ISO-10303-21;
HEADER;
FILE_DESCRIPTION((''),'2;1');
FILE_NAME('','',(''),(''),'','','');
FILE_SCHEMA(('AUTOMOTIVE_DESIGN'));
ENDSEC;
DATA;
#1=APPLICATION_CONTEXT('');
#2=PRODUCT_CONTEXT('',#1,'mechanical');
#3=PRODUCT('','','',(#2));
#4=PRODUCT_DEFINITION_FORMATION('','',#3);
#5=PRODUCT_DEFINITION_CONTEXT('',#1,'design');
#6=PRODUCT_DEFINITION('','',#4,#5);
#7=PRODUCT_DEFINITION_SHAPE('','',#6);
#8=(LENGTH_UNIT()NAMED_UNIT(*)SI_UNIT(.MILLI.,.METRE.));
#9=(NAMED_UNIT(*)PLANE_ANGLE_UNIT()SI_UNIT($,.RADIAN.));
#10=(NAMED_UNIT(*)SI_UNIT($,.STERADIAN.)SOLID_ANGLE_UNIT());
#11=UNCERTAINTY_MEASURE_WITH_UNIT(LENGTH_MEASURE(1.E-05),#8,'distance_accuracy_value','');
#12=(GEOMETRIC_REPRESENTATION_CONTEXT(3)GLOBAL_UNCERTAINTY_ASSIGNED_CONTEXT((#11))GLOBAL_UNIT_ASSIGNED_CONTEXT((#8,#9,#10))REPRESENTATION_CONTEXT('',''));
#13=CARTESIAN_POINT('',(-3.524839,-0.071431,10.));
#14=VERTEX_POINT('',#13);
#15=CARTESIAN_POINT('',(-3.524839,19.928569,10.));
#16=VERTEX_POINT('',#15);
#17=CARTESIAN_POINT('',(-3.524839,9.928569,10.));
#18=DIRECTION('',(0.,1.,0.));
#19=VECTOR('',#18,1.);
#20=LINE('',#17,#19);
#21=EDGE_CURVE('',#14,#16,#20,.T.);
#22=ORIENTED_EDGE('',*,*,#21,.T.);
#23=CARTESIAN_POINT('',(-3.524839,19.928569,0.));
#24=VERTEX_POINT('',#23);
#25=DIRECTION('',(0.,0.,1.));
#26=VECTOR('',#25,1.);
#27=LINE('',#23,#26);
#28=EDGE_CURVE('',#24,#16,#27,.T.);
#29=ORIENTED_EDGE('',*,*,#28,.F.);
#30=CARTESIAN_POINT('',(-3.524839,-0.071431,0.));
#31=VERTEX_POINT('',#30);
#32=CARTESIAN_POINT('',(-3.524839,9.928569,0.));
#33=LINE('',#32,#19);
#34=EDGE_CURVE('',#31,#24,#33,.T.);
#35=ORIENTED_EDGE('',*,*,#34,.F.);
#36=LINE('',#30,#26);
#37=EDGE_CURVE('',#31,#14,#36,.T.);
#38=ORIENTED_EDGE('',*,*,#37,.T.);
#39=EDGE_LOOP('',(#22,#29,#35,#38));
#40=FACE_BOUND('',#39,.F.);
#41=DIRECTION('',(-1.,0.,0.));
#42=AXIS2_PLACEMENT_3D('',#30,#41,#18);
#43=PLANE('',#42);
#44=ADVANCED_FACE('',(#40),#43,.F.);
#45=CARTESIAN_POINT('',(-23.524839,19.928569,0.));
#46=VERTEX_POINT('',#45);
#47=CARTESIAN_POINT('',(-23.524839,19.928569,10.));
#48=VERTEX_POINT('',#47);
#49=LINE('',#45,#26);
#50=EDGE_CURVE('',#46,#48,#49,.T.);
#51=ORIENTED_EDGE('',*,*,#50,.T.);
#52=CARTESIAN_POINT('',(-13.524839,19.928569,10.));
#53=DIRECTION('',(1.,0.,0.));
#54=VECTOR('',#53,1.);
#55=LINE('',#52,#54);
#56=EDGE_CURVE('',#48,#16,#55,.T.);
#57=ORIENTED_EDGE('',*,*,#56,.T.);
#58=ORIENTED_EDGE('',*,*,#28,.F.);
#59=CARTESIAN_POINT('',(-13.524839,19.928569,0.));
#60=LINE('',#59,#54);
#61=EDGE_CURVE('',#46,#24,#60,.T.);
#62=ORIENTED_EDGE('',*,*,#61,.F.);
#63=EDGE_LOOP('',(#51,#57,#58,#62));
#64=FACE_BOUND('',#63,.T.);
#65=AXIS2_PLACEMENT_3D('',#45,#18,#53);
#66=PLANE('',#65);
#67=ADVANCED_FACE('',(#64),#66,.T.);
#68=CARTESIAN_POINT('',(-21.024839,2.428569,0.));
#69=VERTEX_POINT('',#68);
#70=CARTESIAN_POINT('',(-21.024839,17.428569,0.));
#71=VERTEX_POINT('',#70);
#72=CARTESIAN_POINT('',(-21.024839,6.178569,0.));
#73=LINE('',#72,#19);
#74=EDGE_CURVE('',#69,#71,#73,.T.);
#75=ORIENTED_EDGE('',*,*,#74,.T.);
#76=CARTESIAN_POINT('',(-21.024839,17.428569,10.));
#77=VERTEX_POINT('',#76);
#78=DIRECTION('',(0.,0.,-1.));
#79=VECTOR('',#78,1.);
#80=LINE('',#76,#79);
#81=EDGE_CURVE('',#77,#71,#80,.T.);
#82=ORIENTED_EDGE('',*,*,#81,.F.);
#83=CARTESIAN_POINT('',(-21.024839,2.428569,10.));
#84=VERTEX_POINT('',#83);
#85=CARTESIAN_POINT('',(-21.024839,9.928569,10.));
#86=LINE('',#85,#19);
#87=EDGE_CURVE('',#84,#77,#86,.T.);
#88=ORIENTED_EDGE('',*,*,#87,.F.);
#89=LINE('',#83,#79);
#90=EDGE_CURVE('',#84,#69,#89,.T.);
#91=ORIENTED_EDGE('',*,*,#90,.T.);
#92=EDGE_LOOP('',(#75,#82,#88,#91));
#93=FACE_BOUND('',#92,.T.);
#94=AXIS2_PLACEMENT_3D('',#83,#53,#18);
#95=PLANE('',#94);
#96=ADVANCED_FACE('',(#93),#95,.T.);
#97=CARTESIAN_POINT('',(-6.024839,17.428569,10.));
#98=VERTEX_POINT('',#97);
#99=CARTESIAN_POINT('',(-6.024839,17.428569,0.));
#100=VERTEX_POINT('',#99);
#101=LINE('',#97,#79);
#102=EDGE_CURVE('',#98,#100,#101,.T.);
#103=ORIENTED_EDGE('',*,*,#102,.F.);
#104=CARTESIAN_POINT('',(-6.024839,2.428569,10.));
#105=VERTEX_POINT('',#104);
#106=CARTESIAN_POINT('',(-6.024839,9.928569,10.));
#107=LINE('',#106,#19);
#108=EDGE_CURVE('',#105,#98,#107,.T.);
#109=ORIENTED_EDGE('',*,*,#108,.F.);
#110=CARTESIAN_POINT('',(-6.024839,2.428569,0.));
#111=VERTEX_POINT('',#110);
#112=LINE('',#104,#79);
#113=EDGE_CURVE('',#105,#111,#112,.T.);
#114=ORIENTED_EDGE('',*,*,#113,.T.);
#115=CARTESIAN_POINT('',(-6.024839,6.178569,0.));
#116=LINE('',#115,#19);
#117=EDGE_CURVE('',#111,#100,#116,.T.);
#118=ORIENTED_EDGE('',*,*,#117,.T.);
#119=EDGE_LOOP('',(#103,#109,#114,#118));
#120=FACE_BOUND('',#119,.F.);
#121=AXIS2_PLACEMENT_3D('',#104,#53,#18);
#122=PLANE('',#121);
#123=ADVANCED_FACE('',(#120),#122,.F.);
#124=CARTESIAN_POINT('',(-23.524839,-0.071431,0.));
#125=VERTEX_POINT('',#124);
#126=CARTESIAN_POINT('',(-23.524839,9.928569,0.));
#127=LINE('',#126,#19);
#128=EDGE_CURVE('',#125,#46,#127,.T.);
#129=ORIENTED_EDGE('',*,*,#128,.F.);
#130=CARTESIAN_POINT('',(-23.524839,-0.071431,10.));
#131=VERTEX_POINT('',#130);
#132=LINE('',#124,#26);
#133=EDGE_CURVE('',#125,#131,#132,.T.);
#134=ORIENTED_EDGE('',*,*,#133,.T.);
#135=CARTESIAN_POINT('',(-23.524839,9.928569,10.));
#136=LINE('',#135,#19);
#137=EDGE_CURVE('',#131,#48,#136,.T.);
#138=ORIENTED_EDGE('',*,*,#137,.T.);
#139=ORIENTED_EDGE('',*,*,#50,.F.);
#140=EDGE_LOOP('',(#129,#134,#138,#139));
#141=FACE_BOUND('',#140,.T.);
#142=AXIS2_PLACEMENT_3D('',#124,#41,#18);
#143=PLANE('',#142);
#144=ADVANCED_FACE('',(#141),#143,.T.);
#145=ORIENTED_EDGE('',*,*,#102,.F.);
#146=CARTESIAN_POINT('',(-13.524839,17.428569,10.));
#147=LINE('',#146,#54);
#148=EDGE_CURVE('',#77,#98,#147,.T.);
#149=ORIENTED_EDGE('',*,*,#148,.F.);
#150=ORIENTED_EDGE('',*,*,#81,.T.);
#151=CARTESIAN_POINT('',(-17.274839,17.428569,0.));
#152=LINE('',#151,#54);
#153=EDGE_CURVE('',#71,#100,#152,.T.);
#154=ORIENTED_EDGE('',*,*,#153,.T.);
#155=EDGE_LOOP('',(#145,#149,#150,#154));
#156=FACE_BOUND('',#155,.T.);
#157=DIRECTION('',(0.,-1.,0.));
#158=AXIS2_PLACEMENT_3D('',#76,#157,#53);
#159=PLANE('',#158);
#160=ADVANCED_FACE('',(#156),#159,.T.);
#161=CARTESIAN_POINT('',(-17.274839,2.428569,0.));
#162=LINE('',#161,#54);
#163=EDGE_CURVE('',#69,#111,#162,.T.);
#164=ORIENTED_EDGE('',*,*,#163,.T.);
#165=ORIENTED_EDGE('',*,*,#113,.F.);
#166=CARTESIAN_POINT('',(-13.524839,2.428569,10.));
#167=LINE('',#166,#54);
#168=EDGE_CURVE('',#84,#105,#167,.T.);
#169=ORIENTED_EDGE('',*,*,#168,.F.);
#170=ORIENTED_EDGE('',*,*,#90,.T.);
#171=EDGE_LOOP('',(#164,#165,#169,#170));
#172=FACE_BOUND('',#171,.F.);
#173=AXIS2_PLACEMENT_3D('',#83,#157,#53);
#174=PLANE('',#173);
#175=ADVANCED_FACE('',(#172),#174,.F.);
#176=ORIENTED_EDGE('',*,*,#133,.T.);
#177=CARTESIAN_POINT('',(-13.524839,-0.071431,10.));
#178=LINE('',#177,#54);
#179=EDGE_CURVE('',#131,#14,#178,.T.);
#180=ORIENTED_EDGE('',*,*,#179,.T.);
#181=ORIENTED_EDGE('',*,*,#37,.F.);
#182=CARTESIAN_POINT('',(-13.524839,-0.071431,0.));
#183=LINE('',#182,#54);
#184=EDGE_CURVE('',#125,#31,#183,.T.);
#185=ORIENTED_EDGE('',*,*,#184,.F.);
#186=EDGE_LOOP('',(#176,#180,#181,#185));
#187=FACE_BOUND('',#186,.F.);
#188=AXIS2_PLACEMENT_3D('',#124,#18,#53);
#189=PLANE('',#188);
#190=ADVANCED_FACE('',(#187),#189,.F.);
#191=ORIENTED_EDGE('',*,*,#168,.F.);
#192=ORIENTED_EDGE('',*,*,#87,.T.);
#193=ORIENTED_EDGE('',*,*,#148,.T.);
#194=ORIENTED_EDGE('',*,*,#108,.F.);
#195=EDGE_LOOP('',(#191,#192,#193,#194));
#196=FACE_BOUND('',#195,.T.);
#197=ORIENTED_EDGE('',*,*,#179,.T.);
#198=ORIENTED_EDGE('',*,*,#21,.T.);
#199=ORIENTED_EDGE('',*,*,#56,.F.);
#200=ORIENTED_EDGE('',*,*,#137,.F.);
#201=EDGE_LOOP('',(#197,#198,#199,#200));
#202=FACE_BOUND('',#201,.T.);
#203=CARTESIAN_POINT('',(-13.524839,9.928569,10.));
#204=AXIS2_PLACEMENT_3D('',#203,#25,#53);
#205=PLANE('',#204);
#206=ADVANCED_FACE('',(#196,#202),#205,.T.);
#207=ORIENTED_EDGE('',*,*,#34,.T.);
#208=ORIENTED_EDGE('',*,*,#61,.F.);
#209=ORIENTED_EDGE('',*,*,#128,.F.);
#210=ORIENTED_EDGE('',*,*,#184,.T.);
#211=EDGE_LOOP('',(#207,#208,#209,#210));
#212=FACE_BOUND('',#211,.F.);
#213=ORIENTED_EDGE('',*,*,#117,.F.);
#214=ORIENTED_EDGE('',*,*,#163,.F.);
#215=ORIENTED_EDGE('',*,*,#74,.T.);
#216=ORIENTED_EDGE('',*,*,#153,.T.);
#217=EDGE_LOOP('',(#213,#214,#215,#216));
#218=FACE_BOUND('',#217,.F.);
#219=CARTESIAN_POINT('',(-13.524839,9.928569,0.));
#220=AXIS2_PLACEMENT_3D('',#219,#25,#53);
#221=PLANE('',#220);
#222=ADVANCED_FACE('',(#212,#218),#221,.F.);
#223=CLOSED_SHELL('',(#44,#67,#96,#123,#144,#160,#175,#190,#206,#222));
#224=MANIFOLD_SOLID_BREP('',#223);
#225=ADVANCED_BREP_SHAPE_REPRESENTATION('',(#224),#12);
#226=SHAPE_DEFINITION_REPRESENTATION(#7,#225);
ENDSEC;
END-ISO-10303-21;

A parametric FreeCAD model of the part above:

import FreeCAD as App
import Part
import Sketcher

V = App.Vector


def add_polygon(sketch, points):
    """Adds a closed chain of lines whose ends are joined by coincident constraints."""
    first, n = sketch.GeometryCount, len(points)
    for a, b in zip(points, points[1:] + points[:1]):
        sketch.addGeometry(Part.LineSegment(App.Vector(*a, 0), App.Vector(*b, 0)), False)
    for i in range(n):
        sketch.addConstraint(Sketcher.Constraint("Coincident", first + i, 2, first + (i + 1) % n, 1))

doc = App.newDocument("Part")
params = doc.addObject("Spreadsheet::Sheet", "Params")
for row, (alias, value) in enumerate([
    ("sketch1_diameter", "15 mm"),
    ("pad1_length", "0.4 mm"),
    ("sketch2_width", "20 mm"),
    ("pad2_length", "10 mm"),
    ("sketch3_width", "15 mm"),
    ("pocket1_length", "25 mm"),
], start=1):
    params.set(f"A{row}", alias)
    params.set(f"B{row}", "=" + value)
    params.setAlias(f"B{row}", alias)

body = doc.addObject("PartDesign::Body", "Body")

# Sketch on XY plane
sketch1 = body.newObject("Sketcher::SketchObject", "Sketch")
sketch1.AttachmentSupport = (doc.getObject("XY_Plane"), [""])
sketch1.MapMode = "FlatFace"
sketch1.addGeometry(Part.Circle(V(0, 0, 0), V(0, 0, 1), 8), False)
sketch1.addConstraint([
    Sketcher.Constraint("Coincident", 0, 3, -1, 1),
    Sketcher.Constraint("Diameter", 0, 15.0),
])
sketch1.setExpression("Constraints[1]", "Params.sketch1_diameter")
pad1 = body.newObject("PartDesign::Pad", "Pad")
pad1.Profile = sketch1
pad1.setExpression("Length", "Params.pad1_length")
body2 = doc.addObject("PartDesign::Body", "Body001")

# Sketch on XY plane
sketch2 = body2.newObject("Sketcher::SketchObject", "Sketch001")
sketch2.AttachmentSupport = (doc.getObject("XY_Plane001"), [""])
sketch2.MapMode = "FlatFace"
add_polygon(sketch2, [(-24, 20), (-24, 0), (-4, 0), (-4, 20)])  # lines 0-3
sketch2.addConstraint([
    Sketcher.Constraint("Vertical", 0),
    Sketcher.Constraint("Horizontal", 1),
    Sketcher.Constraint("Vertical", 2),
    Sketcher.Constraint("Horizontal", 3),
    Sketcher.Constraint("Equal", 3, 0),
    Sketcher.Constraint("DistanceX", 1, 1, 1, 2, 20.0),
    Sketcher.Constraint("DistanceX", 0, 2, -1, 1, 23.524839),
    Sketcher.Constraint("DistanceY", 0, 2, -1, 1, 0.071431),
])
sketch2.setExpression("Constraints[9]", "Params.sketch2_width")
pad2 = body2.newObject("PartDesign::Pad", "Pad001")
pad2.Profile = sketch2
pad2.setExpression("Length", "Params.pad2_length")

# Sketch on XY plane
sketch3 = body2.newObject("Sketcher::SketchObject", "Sketch002")
sketch3.AttachmentSupport = (doc.getObject("XY_Plane001"), [""])
sketch3.MapMode = "FlatFace"
sketch3.AttachmentOffset = App.Placement(V(0, 0, 10), App.Rotation())
add_polygon(sketch3, [(-21, 17), (-21, 2), (-6, 2), (-6, 17)])  # lines 0-3
sketch3.addConstraint([
    Sketcher.Constraint("Vertical", 0),
    Sketcher.Constraint("Horizontal", 1),
    Sketcher.Constraint("Vertical", 2),
    Sketcher.Constraint("Horizontal", 3),
    Sketcher.Constraint("Equal", 3, 0),
    Sketcher.Constraint("DistanceX", 1, 1, 1, 2, 15.0),
    Sketcher.Constraint("DistanceX", 0, 2, -1, 1, 21.024839),
    Sketcher.Constraint("DistanceY", -1, 1, 0, 2, 2.428569),
])
sketch3.setExpression("Constraints[9]", "Params.sketch3_width")
pocket1 = body2.newObject("PartDesign::Pocket", "Pocket")
pocket1.Profile = sketch3
pocket1.setExpression("Length", "Params.pocket1_length")
body.Visibility = False

doc.recompute()
